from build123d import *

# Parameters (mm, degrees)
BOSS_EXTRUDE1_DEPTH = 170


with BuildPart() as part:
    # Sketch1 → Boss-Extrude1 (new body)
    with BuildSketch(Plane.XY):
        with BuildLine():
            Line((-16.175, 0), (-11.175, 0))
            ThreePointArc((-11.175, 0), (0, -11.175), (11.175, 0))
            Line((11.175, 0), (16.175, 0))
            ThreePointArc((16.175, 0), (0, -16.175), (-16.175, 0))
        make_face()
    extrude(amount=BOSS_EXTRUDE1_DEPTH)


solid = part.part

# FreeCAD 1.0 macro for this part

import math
import FreeCAD as App
import Part
import Sketcher

V = App.Vector

doc = App.newDocument("Part")
params = doc.addObject("Spreadsheet::Sheet", "Params")
for row, (alias, value) in enumerate([
    ("sketch1_width", "5 mm"),
    ("pad1_length", "170 mm"),
], start=1):
    params.set(f"A{row}", alias)
    params.set(f"B{row}", "=" + value)
    params.setAlias(f"B{row}", alias)

body = doc.addObject("PartDesign::Body", "Body")

sketch1 = doc.addObject("Sketcher::SketchObject", "Sketch")
body.addObject(sketch1)
sketch1.AttachmentSupport = (doc.XY_Plane, [""])
sketch1.MapMode = "FlatFace"
sketch1.addGeometry([
    Part.LineSegment(V(-11, 0, 0), V(-16, 0, 0)),
    Part.ArcOfCircle(Part.Circle(V(0, 0, 0), V(0, 0, 1), 16), math.radians(180), math.radians(360)),
    Part.LineSegment(V(16, 0, 0), V(11, 0, 0)),
    Part.ArcOfCircle(Part.Circle(V(0, 0, 0), V(0, 0, 1), 11), math.radians(180), math.radians(360)),
], False)
sketch1.addConstraint([
    Sketcher.Constraint("Coincident", 0, 2, 1, 1),
    Sketcher.Constraint("Coincident", 1, 2, 2, 1),
    Sketcher.Constraint("Coincident", 2, 2, 3, 2),
    Sketcher.Constraint("Coincident", 3, 1, 0, 1),
    Sketcher.Constraint("Horizontal", 0),
    Sketcher.Constraint("Horizontal", 2),
    Sketcher.Constraint("Coincident", 1, 3, -1, 1),
    Sketcher.Constraint("Coincident", 3, 3, -1, 1),
    Sketcher.Constraint("PointOnObject", 0, 2, -1),
    Sketcher.Constraint("PointOnObject", 1, 2, -1),
    Sketcher.Constraint("DistanceX", 0, 2, 0, 1, 5.0),
    Sketcher.Constraint("Radius", 1, 16.175),
])
sketch1.setExpression("Constraints[10]", "Params.sketch1_width")
pad1 = doc.addObject("PartDesign::Pad", "Pad")
body.addObject(pad1)
pad1.Profile = sketch1
pad1.setExpression("Length", "Params.pad1_length")

doc.recompute()
